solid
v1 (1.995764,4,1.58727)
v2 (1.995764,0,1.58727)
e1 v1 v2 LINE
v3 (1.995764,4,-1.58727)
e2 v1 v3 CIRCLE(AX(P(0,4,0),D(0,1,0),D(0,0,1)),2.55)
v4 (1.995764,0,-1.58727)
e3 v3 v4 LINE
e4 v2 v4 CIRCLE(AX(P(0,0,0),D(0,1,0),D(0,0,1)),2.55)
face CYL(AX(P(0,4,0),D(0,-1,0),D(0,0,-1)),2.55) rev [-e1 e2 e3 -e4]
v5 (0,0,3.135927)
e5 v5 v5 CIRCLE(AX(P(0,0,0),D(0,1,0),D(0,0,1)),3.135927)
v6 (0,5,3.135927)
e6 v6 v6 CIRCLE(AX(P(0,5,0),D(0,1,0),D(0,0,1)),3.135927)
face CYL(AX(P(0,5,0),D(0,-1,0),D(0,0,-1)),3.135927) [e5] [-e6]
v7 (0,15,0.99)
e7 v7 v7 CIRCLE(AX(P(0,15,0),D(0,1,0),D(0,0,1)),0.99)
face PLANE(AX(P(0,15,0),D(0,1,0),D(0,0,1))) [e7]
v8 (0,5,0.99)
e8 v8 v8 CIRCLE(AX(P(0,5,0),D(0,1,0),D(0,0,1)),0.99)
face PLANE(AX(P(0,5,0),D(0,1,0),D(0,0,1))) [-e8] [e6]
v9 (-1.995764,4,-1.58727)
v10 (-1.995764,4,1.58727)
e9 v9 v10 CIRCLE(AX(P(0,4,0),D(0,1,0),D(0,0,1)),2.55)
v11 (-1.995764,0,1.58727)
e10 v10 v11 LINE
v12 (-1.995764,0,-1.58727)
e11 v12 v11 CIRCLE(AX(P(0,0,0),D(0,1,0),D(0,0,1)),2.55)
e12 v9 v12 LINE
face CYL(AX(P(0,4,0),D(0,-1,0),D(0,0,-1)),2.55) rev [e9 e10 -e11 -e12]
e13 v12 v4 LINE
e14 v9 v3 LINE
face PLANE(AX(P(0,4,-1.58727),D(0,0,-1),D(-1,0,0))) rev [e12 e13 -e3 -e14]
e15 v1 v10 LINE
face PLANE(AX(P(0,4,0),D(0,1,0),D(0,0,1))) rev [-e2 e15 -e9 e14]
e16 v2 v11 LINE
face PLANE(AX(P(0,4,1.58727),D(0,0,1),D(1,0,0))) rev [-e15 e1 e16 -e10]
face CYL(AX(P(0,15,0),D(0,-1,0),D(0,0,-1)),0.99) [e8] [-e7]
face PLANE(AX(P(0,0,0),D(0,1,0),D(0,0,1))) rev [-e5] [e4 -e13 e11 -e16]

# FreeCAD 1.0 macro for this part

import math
import FreeCAD as App
import Part
import Sketcher

V = App.Vector
Q = App.Units.Quantity

doc = App.newDocument("Part")
body = doc.addObject("PartDesign::Body", "Body")

sketch1 = body.newObject("Sketcher::SketchObject", "Sketch")
sketch1.AttachmentSupport = (doc.getObject("XZ_Plane"), [""])
sketch1.MapMode = "FlatFace"
sketch1.addGeometry(Part.Circle(V(0, 0, 0), V(0, 0, 1), 3.1), False)
sketch1.addConstraint(Sketcher.Constraint("Coincident", 0, 3, -1, 1))
sketch1.addConstraint(Sketcher.Constraint("Diameter", 0, Q("6.271854 mm")))
pad1 = body.newObject("PartDesign::Pad", "Pad")
pad1.Profile = sketch1
pad1.Length = 5
pad1.Reversed = True

sketch2 = body.newObject("Sketcher::SketchObject", "Sketch001")
sketch2.AttachmentSupport = (doc.getObject("XZ_Plane"), [""])
sketch2.MapMode = "FlatFace"
sketch2.addGeometry(Part.LineSegment(V(-2, 1.6, 0), V(2, 1.6, 0)), False)
sketch2.addGeometry(Part.ArcOfCircle(Part.Circle(V(0, 0, 0), V(0, 0, 1), 2.5), math.radians(0), math.radians(38)), False)
sketch2.addGeometry(Part.ArcOfCircle(Part.Circle(V(0, 0, 0), V(0, 0, 1), 2.5), math.radians(-38), math.radians(0)), False)
sketch2.addGeometry(Part.LineSegment(V(2, -1.6, 0), V(-2, -1.6, 0)), False)
sketch2.addGeometry(Part.ArcOfCircle(Part.Circle(V(0, 0, 0), V(0, 0, 1), 2.5), math.radians(142), math.radians(218)), False)
sketch2.addConstraint(Sketcher.Constraint("Coincident", 0, 2, 1, 2))
sketch2.addConstraint(Sketcher.Constraint("Tangent", 1, 1, 2, 2))
sketch2.addConstraint(Sketcher.Constraint("Coincident", 2, 1, 3, 1))
sketch2.addConstraint(Sketcher.Constraint("Coincident", 3, 2, 4, 2))
sketch2.addConstraint(Sketcher.Constraint("Coincident", 4, 1, 0, 1))
sketch2.addConstraint(Sketcher.Constraint("Horizontal", 0))
sketch2.addConstraint(Sketcher.Constraint("Horizontal", 3))
sketch2.addConstraint(Sketcher.Constraint("Coincident", 1, 3, -1, 1))
sketch2.addConstraint(Sketcher.Constraint("Coincident", 4, 3, -1, 1))
sketch2.addConstraint(Sketcher.Constraint("Equal", 1, 2))
sketch2.addConstraint(Sketcher.Constraint("Equal", 2, 4))
sketch2.addConstraint(Sketcher.Constraint("PointOnObject", 1, 1, -1))
sketch2.addConstraint(Sketcher.Constraint("Vertical", 0, 2, 2, 1))
sketch2.addConstraint(Sketcher.Constraint("Radius", 1, Q("2.55 mm")))
sketch2.addConstraint(Sketcher.Constraint("DistanceX", 0, 1, 0, 2, Q("3.991527 mm")))
pocket1 = body.newObject("PartDesign::Pocket", "Pocket")
pocket1.Profile = sketch2
pocket1.Length = 4

sketch3 = body.newObject("Sketcher::SketchObject", "Sketch002")
sketch3.AttachmentSupport = (doc.getObject("XZ_Plane"), [""])
sketch3.MapMode = "FlatFace"
sketch3.AttachmentOffset = App.Placement(V(0, 0, -5), App.Rotation())
sketch3.addGeometry(Part.Circle(V(0, 0, 0), V(0, 0, 1), 1), False)
sketch3.addConstraint(Sketcher.Constraint("Coincident", 0, 3, -1, 1))
sketch3.addConstraint(Sketcher.Constraint("Diameter", 0, Q("1.98 mm")))
pad2 = body.newObject("PartDesign::Pad", "Pad001")
pad2.Profile = sketch3
pad2.Length = 10
pad2.Reversed = True

doc.recompute()
